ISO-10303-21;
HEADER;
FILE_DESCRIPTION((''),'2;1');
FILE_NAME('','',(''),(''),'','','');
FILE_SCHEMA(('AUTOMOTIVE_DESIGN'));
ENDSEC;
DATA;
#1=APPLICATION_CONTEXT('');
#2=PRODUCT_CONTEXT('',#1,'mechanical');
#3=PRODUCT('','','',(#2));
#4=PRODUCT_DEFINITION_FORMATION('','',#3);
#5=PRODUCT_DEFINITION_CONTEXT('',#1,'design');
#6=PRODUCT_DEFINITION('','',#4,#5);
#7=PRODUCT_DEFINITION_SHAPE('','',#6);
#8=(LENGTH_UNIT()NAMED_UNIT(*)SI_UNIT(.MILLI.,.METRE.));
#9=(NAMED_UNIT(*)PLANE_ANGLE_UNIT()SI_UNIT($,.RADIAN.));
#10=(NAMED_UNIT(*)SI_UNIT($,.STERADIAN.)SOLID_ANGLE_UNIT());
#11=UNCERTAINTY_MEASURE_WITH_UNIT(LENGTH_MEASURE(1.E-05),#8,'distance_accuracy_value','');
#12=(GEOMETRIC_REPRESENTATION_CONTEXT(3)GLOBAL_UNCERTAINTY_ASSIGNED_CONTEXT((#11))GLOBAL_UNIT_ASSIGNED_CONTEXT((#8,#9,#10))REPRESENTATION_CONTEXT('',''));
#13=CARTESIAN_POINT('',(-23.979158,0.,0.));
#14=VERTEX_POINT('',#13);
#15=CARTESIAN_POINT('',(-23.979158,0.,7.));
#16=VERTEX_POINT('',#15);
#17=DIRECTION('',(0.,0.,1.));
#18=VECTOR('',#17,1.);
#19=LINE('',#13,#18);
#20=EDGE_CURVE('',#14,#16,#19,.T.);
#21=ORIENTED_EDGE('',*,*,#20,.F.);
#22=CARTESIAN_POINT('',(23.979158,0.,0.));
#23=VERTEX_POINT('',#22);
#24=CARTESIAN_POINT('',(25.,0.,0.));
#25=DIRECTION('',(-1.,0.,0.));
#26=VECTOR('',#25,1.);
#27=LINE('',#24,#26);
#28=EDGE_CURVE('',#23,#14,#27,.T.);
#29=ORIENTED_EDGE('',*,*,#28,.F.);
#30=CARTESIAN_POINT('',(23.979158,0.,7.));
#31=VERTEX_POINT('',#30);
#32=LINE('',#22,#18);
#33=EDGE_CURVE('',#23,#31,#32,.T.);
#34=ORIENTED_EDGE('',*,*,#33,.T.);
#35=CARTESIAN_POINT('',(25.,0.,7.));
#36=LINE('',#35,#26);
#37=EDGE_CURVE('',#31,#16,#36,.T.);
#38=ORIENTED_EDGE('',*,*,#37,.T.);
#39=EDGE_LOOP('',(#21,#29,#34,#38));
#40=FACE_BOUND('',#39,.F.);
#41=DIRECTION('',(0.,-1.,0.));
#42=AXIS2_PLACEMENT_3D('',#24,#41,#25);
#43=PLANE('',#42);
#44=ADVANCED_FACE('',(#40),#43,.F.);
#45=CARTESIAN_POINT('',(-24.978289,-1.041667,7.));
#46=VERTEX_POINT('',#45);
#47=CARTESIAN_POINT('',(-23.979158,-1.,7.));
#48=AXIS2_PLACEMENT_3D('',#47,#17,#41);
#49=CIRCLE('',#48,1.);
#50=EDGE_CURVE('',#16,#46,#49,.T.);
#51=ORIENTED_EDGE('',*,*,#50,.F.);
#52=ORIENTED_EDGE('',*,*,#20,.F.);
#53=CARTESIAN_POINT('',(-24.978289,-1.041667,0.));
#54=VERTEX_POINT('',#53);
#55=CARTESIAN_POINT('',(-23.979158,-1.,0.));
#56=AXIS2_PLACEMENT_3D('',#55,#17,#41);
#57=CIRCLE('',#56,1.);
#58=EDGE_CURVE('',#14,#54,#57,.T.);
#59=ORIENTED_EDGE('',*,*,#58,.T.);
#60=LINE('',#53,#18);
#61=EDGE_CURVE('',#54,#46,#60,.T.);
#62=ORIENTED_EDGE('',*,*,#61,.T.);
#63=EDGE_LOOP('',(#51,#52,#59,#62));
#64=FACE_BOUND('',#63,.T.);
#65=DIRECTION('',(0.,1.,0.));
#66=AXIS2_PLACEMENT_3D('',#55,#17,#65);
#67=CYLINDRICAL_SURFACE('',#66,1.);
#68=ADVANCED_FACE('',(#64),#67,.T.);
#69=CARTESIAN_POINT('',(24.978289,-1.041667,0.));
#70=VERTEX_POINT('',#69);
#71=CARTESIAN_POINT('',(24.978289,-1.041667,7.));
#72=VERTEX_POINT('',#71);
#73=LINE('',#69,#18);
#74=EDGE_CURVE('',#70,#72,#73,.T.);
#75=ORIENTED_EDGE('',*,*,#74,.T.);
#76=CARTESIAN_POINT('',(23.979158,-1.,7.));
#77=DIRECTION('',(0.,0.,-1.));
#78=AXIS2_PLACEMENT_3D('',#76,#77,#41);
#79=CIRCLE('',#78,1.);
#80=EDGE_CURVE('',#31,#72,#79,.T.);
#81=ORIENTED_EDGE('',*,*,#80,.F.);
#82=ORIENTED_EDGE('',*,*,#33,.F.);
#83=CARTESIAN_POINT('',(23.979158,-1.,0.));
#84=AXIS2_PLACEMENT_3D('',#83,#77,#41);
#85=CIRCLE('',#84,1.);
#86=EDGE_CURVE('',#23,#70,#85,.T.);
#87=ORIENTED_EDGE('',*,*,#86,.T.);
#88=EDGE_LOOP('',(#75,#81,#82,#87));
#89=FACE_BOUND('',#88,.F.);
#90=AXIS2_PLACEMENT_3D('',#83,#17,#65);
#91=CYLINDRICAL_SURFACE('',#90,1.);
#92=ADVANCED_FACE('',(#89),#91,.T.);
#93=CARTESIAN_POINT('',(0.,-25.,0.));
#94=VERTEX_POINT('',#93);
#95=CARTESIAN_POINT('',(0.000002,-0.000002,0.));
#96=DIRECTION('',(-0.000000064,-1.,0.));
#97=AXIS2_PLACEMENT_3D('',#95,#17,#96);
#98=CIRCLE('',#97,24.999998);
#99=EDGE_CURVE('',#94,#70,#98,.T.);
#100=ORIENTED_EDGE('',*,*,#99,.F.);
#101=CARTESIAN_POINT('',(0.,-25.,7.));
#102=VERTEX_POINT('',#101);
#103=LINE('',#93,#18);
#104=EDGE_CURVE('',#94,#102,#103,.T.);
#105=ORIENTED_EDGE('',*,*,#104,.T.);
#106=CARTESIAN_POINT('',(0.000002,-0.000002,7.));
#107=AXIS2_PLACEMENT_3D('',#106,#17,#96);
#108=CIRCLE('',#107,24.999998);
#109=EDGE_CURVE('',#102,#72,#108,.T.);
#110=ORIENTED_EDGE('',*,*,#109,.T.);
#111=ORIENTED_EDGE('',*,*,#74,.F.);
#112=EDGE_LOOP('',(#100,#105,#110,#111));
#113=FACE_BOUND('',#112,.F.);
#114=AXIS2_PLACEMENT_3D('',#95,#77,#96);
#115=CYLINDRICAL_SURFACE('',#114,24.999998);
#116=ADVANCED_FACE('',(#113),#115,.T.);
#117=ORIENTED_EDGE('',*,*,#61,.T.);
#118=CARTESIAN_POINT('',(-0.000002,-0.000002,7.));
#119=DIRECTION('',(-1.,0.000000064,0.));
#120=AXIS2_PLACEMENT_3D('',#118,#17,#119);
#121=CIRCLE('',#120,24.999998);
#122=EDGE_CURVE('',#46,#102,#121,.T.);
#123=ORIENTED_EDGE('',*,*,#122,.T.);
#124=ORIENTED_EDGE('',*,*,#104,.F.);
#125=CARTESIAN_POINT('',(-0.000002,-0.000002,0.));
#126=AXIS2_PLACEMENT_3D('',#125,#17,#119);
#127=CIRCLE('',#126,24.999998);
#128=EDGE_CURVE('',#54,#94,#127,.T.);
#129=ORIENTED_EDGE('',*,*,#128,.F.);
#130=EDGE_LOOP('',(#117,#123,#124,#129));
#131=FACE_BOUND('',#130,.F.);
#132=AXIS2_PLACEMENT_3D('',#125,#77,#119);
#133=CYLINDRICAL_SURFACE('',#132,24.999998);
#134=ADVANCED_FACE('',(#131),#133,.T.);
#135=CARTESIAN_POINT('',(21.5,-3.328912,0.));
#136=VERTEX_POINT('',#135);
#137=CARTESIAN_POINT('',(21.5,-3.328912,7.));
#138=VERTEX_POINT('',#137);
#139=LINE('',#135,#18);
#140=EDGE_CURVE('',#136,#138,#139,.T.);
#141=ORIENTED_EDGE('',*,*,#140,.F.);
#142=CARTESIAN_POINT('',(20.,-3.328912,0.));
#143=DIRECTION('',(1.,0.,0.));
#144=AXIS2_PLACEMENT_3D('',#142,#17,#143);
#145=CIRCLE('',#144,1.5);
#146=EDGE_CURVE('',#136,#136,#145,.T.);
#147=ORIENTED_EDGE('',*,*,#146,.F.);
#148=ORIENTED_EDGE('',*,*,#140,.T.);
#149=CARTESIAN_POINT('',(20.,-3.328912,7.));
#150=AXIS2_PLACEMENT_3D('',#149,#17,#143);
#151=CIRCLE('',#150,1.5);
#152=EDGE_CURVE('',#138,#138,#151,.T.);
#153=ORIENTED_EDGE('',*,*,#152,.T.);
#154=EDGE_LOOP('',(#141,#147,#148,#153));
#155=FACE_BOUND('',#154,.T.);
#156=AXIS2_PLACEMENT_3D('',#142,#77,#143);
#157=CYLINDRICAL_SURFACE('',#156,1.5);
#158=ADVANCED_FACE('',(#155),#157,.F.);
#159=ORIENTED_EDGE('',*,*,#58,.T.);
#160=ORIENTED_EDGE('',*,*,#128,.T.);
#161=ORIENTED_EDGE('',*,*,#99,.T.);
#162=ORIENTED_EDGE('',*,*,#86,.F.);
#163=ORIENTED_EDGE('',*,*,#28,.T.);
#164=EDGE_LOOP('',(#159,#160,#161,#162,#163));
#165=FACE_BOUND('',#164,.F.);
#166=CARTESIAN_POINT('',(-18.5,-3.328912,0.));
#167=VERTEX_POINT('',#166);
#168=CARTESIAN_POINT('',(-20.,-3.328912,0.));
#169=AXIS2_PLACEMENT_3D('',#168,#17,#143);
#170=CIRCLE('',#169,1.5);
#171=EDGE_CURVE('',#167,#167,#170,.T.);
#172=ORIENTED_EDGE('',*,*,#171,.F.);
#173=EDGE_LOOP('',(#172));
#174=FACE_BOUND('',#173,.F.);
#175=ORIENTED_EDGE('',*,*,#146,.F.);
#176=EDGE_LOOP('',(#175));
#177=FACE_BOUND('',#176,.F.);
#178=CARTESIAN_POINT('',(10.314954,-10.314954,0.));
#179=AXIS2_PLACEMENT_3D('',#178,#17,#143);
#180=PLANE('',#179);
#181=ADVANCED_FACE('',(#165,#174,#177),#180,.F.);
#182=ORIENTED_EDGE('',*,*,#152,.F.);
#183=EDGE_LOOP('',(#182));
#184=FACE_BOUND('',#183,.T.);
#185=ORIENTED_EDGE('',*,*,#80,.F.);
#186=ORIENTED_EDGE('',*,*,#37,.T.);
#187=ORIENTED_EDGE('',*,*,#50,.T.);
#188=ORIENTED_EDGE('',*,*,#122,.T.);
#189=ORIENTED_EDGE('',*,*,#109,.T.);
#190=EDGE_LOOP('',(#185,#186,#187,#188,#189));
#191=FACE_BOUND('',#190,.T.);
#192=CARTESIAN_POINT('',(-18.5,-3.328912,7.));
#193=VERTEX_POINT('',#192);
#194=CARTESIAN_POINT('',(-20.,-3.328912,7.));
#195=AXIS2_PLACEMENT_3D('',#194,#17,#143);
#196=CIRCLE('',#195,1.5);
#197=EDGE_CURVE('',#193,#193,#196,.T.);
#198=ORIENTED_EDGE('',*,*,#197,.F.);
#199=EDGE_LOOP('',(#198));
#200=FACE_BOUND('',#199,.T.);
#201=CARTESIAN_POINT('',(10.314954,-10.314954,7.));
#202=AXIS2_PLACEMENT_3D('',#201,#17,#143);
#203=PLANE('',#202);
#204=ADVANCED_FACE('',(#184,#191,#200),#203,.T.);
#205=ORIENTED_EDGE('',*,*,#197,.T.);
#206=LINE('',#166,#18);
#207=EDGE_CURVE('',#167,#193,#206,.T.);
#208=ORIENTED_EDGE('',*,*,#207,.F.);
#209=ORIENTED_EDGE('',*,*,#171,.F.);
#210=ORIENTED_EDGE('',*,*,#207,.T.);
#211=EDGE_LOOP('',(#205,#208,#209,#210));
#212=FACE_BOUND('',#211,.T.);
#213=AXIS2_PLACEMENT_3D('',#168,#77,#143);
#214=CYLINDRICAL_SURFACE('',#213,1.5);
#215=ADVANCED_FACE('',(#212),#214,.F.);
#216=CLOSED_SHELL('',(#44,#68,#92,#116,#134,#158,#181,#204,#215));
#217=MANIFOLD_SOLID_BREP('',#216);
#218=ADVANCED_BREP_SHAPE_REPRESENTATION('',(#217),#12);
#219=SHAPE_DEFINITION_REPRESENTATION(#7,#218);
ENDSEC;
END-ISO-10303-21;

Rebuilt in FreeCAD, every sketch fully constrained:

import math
import FreeCAD as App
import Part
import Sketcher


def edges_at(feature, points):
    """Names of the edges that pass closest to the given points."""
    edges = feature.Shape.Edges
    near = lambda p: min(range(len(edges)), key=lambda i: edges[i].distToShape(Part.Vertex(*p))[0])
    return sorted({f"Edge{near(p) + 1}" for p in points})

doc = App.newDocument("Part")
body = doc.addObject("PartDesign::Body", "Body")

# Sketch on XY plane
sketch1 = body.newObject("Sketcher::SketchObject", "Sketch")
sketch1.AttachmentSupport = (doc.getObject("XY_Plane"), [""])
sketch1.MapMode = "FlatFace"
sketch1.addGeometry([
    Part.LineSegment(App.Vector(25, 0, 0), App.Vector(-25, 0, 0)),  # 0
    Part.ArcOfCircle(Part.Circle(App.Vector(-0.000002, -0.000002, 0), App.Vector(0, 0, 1), 24.999998), math.radians(179.999996), math.radians(270.000004)),  # 1
    Part.ArcOfCircle(Part.Circle(App.Vector(0.000002, -0.000002, 0), App.Vector(0, 0, 1), 24.999998), math.radians(-90.000004), math.radians(0.000004)),  # 2
    Part.Circle(App.Vector(-20, -3.328912, 0), App.Vector(0, 0, 1), 1.5),  # 3
    Part.Circle(App.Vector(20, -3.328912, 0), App.Vector(0, 0, 1), 1.5),  # 4
], False)
sketch1.addConstraint([
    Sketcher.Constraint("Coincident", 0, 2, 1, 1),
    Sketcher.Constraint("Tangent", 1, 2, 2, 1),
    Sketcher.Constraint("Coincident", 2, 2, 0, 1),
    Sketcher.Constraint("Horizontal", 0),
    Sketcher.Constraint("Coincident", 1, 3, -1, 1),
    Sketcher.Constraint("Equal", 1, 2),
    Sketcher.Constraint("Equal", 3, 4),
    Sketcher.Constraint("Symmetric", 3, 3, 4, 3, -2),
    Sketcher.Constraint("PointOnObject", 0, 2, -1),
    Sketcher.Constraint("PointOnObject", 1, 2, -2),
    Sketcher.Constraint("Diameter", 3, 3.0),
    Sketcher.Constraint("Radius", 1, 24.999998),
    Sketcher.Constraint("DistanceX", 3, 3, -1, 1, 20.0),
    Sketcher.Constraint("DistanceY", 3, 3, -1, 1, 3.328912),
])
pad1 = body.newObject("PartDesign::Pad", "Pad")
pad1.Profile = sketch1
pad1.Length = 7
doc.recompute()

fillet = body.newObject("PartDesign::Fillet", "Fillet")
fillet.Base = (pad1, edges_at(pad1, [(25, 0, 3.5), (-25, 0, 3.5)]))
fillet.Radius = 1

doc.recompute()
